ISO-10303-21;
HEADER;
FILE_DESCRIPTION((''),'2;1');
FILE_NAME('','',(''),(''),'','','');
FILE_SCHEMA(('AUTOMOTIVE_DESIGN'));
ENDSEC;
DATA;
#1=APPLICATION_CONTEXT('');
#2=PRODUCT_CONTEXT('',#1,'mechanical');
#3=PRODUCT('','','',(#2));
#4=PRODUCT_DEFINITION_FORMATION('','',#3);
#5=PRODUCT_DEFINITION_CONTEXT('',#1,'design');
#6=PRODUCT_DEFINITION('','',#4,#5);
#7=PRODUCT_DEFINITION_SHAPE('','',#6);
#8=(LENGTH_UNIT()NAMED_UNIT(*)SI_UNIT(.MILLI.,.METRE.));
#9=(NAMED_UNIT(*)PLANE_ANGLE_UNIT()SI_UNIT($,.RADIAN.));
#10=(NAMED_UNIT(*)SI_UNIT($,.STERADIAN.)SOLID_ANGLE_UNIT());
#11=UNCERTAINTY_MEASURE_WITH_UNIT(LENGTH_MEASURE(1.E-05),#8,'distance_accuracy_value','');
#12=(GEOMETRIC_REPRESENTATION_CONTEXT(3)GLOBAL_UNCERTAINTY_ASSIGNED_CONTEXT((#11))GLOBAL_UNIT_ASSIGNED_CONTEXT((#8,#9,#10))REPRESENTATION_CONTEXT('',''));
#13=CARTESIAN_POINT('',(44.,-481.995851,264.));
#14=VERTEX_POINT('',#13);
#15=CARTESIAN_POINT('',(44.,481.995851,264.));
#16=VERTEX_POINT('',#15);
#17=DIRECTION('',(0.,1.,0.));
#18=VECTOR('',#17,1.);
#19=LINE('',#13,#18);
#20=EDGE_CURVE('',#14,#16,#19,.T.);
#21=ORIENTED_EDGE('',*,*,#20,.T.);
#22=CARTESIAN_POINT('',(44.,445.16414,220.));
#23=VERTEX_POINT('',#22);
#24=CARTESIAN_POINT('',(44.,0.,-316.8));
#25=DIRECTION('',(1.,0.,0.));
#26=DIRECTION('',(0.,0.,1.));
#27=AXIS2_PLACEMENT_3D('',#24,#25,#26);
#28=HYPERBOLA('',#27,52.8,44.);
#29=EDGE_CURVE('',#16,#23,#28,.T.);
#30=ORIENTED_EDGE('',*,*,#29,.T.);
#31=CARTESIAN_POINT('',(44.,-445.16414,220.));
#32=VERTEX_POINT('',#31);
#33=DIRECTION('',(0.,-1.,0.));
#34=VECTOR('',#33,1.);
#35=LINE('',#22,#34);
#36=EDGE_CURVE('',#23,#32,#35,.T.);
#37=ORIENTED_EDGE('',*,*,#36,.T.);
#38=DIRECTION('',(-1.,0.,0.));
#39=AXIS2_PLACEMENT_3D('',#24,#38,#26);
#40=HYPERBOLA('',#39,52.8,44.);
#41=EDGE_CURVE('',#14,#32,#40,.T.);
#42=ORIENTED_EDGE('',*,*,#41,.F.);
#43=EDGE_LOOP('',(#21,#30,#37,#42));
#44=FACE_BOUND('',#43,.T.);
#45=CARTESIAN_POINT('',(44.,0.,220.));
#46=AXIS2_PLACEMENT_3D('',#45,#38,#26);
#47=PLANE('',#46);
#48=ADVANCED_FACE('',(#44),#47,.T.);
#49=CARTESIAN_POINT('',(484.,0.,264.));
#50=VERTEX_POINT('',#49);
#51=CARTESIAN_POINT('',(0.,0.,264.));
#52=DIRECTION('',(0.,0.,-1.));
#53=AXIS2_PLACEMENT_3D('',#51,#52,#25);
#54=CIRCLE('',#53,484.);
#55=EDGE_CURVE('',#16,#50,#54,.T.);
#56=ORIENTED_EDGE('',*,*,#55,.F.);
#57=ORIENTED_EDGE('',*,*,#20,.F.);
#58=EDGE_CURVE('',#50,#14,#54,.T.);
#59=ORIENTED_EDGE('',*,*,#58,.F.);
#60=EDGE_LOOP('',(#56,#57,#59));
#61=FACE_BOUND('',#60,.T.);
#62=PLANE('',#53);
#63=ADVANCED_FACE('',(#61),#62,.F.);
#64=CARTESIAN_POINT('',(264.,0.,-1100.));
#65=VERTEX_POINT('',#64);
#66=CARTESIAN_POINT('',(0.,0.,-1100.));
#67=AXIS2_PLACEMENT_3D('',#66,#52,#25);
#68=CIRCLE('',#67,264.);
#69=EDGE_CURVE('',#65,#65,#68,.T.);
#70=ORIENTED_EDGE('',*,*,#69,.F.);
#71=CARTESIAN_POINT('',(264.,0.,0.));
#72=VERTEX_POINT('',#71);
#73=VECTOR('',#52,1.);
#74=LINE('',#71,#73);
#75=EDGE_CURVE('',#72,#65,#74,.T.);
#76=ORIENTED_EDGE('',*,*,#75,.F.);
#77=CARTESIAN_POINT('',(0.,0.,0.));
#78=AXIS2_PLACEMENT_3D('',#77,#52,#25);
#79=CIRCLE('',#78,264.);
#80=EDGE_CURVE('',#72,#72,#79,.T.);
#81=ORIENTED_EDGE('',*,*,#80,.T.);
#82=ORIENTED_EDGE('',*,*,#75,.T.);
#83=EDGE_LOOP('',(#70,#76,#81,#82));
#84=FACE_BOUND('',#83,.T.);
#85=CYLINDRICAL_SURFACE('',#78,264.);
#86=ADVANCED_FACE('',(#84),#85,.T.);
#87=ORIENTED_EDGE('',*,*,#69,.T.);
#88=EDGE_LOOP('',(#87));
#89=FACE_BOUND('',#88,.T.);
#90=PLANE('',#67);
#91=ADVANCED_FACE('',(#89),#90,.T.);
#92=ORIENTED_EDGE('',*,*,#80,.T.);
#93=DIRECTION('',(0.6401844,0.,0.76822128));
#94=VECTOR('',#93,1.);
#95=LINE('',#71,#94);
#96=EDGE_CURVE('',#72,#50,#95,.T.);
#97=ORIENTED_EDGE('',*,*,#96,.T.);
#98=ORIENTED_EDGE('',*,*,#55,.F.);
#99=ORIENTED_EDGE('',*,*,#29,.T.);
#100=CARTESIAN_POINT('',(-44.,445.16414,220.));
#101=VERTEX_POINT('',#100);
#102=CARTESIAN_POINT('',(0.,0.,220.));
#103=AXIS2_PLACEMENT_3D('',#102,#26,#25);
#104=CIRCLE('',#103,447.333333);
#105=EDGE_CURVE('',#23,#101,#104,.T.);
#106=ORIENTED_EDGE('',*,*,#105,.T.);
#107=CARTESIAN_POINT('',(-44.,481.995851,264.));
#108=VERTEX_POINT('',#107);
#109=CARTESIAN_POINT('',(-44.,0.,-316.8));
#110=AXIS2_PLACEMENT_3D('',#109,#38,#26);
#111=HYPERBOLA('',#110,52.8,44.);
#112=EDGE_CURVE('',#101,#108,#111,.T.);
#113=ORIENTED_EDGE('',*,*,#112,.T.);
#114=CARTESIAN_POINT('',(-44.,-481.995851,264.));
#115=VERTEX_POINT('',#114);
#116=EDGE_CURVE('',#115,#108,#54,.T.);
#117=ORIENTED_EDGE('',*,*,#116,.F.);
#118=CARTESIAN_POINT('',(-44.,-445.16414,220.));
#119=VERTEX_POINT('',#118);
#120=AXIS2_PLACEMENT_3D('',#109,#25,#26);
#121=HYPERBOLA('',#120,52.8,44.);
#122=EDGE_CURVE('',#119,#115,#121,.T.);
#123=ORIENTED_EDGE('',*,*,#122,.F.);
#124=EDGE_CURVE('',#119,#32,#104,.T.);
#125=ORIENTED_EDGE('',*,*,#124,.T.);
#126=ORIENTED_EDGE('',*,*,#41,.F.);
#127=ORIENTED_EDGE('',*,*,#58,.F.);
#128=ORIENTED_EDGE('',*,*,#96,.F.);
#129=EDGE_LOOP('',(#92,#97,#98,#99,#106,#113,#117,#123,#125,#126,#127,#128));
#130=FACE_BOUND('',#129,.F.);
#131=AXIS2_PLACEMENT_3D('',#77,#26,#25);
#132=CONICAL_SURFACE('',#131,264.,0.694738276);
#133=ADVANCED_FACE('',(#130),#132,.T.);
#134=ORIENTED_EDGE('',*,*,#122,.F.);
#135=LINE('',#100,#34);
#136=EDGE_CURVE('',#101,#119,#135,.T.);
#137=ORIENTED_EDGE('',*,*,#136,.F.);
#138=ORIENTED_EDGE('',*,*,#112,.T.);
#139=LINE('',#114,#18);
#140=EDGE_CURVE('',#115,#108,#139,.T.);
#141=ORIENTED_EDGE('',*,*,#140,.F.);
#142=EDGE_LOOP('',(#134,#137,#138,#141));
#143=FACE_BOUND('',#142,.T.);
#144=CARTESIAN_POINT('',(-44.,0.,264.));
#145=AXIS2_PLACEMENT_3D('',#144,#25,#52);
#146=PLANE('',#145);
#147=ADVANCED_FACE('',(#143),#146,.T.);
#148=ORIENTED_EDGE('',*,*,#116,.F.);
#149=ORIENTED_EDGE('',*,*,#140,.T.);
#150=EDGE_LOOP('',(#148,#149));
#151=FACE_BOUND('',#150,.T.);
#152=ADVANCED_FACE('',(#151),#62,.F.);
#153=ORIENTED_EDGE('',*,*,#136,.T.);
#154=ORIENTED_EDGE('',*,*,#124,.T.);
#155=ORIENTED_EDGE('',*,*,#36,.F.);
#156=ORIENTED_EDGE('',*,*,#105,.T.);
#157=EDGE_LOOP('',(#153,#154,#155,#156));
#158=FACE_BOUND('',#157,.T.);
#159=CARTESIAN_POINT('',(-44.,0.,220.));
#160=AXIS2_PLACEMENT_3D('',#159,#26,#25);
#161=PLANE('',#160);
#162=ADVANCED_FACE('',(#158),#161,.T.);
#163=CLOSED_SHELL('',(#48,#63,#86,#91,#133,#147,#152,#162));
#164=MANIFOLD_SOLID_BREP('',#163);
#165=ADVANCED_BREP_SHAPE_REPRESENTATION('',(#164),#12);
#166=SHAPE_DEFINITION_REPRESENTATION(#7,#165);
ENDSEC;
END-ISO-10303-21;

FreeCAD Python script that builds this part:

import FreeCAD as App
import Part
import Sketcher
from FreeCAD import Vector


def add_polygon(sketch, points):
    """Adds a closed chain of lines whose ends are joined by coincident constraints."""
    first, n = sketch.GeometryCount, len(points)
    for a, b in zip(points, points[1:] + points[:1]):
        sketch.addGeometry(Part.LineSegment(App.Vector(*a, 0), App.Vector(*b, 0)), False)
    for i in range(n):
        sketch.addConstraint(Sketcher.Constraint("Coincident", first + i, 2, first + (i + 1) % n, 1))

doc = App.newDocument("Part")
params = doc.addObject("Spreadsheet::Sheet", "Params")
for row, (alias, value) in enumerate([
    ("sketch1_width", "484 mm"),
    ("sketch1_width2", "264 mm"),
    ("sketch1_height", "1100 mm"),
    ("sketch1_height2", "1364 mm"),
    ("revolution_angle", "360 deg"),
    ("sketch2_width", "88 mm"),
    ("sketch2_height", "44 mm"),
], start=1):
    params.set(f"A{row}", alias)
    params.set(f"B{row}", "=" + value)
    params.setAlias(f"B{row}", alias)

body = doc.addObject("PartDesign::Body", "Body")

# Sketch on XZ plane
sketch1 = body.newObject("Sketcher::SketchObject", "Sketch")
sketch1.AttachmentSupport = (doc.getObject("XZ_Plane"), [""])
sketch1.MapMode = "FlatFace"
add_polygon(sketch1, [(264, -1100), (264, 0), (484, 264), (0, 264), (0, -1100)])  # lines 0-4
sketch1.addConstraint([
    Sketcher.Constraint("Vertical", 0),
    Sketcher.Constraint("Horizontal", 2),
    Sketcher.Constraint("Vertical", 3),
    Sketcher.Constraint("Horizontal", 4),
    Sketcher.Constraint("PointOnObject", 0, 2, -1),
    Sketcher.Constraint("PointOnObject", 2, 2, -2),
    Sketcher.Constraint("DistanceX", 2, 2, 2, 1, 484.0),
    Sketcher.Constraint("DistanceX", 4, 1, 4, 2, 264.0),
    Sketcher.Constraint("DistanceY", 0, 1, 0, 2, 1100.0),
    Sketcher.Constraint("DistanceY", 3, 2, 3, 1, 1364.0),
])
sketch1.setExpression("Constraints[11]", "Params.sketch1_width")
sketch1.setExpression("Constraints[12]", "Params.sketch1_width2")
sketch1.setExpression("Constraints[13]", "Params.sketch1_height")
sketch1.setExpression("Constraints[14]", "Params.sketch1_height2")
revolution = body.newObject("PartDesign::Revolution", "Revolution")
revolution.Profile = sketch1
revolution.ReferenceAxis = (sketch1, ["V_Axis"])
revolution.setExpression("Angle", "Params.revolution_angle")

# Sketch on XZ plane
sketch2 = body.newObject("Sketcher::SketchObject", "Sketch001")
sketch2.AttachmentSupport = (doc.getObject("XZ_Plane"), [""])
sketch2.MapMode = "FlatFace"
add_polygon(sketch2, [(44, 264), (-44, 264), (-44, 220), (44, 220)])  # lines 0-3
sketch2.addConstraint([
    Sketcher.Constraint("Horizontal", 0),
    Sketcher.Constraint("Vertical", 1),
    Sketcher.Constraint("Horizontal", 2),
    Sketcher.Constraint("Vertical", 3),
    Sketcher.Constraint("DistanceX", 0, 2, 0, 1, 88.0),
    Sketcher.Constraint("DistanceY", 1, 2, 1, 1, 44.0),
    Sketcher.Constraint("DistanceX", 0, 2, -1, 1, 44.0),
    Sketcher.Constraint("DistanceY", -1, 1, 0, 2, 264.0),
])
sketch2.setExpression("Constraints[8]", "Params.sketch2_width")
sketch2.setExpression("Constraints[9]", "Params.sketch2_height")
pocket1 = body.newObject("PartDesign::Pocket", "Pocket")
pocket1.Profile = sketch2
pocket1.Type = "ThroughAll"
pocket1.Midplane = True

doc.recompute()
